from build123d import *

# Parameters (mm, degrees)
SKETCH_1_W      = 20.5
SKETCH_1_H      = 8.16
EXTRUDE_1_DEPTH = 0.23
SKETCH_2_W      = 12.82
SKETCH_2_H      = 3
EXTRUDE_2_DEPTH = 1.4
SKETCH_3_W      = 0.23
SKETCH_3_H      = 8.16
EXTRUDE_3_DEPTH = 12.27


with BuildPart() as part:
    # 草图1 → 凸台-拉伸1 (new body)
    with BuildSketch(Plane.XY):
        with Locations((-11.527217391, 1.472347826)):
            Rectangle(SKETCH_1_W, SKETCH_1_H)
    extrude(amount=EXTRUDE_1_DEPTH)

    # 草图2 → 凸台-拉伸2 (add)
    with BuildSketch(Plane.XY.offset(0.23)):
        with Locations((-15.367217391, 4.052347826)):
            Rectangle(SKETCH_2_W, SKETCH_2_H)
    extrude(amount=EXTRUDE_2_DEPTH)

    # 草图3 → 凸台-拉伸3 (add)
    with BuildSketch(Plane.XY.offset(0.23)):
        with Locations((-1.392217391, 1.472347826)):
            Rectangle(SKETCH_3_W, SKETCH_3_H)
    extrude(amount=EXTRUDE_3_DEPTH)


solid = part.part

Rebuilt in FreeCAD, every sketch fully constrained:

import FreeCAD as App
import Part
import Sketcher
from FreeCAD import Vector


def add_polygon(sketch, points):
    """Adds a closed chain of lines whose ends are joined by coincident constraints."""
    first, n = sketch.GeometryCount, len(points)
    for a, b in zip(points, points[1:] + points[:1]):
        sketch.addGeometry(Part.LineSegment(App.Vector(*a, 0), App.Vector(*b, 0)), False)
    for i in range(n):
        sketch.addConstraint(Sketcher.Constraint("Coincident", first + i, 2, first + (i + 1) % n, 1))

doc = App.newDocument("Part")
params = doc.addObject("Spreadsheet::Sheet", "Params")
for row, (alias, value) in enumerate([
    ("sketch1_width", "20.5 mm"),
    ("sketch1_height", "8.16 mm"),
    ("pad1_length", "0.23 mm"),
    ("sketch2_height", "3 mm"),
    ("sketch2_width", "12.82 mm"),
    ("pad2_length", "1.4 mm"),
    ("sketch3_width", "0.23 mm"),
    ("sketch3_height", "8.16 mm"),
    ("pad3_length", "12.27 mm"),
], start=1):
    params.set(f"A{row}", alias)
    params.set(f"B{row}", "=" + value)
    params.setAlias(f"B{row}", alias)

body = doc.addObject("PartDesign::Body", "Body")

# Sketch on XY plane
sketch1 = body.newObject("Sketcher::SketchObject", "Sketch")
sketch1.AttachmentSupport = (doc.getObject("XY_Plane"), [""])
sketch1.MapMode = "FlatFace"
add_polygon(sketch1, [(-22, 6), (-22, -3), (-1, -3), (-1, 6)])  # lines 0-3
sketch1.addConstraint(Sketcher.Constraint("Vertical", 0))
sketch1.addConstraint(Sketcher.Constraint("Horizontal", 1))
sketch1.addConstraint(Sketcher.Constraint("Vertical", 2))
sketch1.addConstraint(Sketcher.Constraint("Horizontal", 3))
sketch1.addConstraint(Sketcher.Constraint("DistanceX", 1, 1, 1, 2, 20.5))
sketch1.addConstraint(Sketcher.Constraint("DistanceY", 0, 2, 0, 1, 8.16))
sketch1.addConstraint(Sketcher.Constraint("DistanceX", 0, 2, -1, 1, 21.777217))
sketch1.addConstraint(Sketcher.Constraint("DistanceY", 0, 2, -1, 1, 2.607652))
sketch1.setExpression("Constraints[8]", "Params.sketch1_width")
sketch1.setExpression("Constraints[9]", "Params.sketch1_height")
pad1 = body.newObject("PartDesign::Pad", "Pad")
pad1.Profile = sketch1
pad1.setExpression("Length", "Params.pad1_length")

# Sketch on XY plane
sketch2 = body.newObject("Sketcher::SketchObject", "Sketch001")
sketch2.AttachmentSupport = (doc.getObject("XY_Plane"), [""])
sketch2.MapMode = "FlatFace"
sketch2.AttachmentOffset = App.Placement(Vector(0, 0, 0.23), App.Rotation())
add_polygon(sketch2, [(-21.8, 5.6), (-21.8, 2.6), (-9, 2.6), (-9, 5.6)])  # lines 0-3
sketch2.addConstraint(Sketcher.Constraint("Vertical", 0))
sketch2.addConstraint(Sketcher.Constraint("Horizontal", 1))
sketch2.addConstraint(Sketcher.Constraint("Vertical", 2))
sketch2.addConstraint(Sketcher.Constraint("Horizontal", 3))
sketch2.addConstraint(Sketcher.Constraint("DistanceY", 0, 2, 0, 1, 3.0))
sketch2.addConstraint(Sketcher.Constraint("DistanceX", 1, 1, 1, 2, 12.82))
sketch2.addConstraint(Sketcher.Constraint("DistanceX", 0, 2, -1, 1, 21.777217))
sketch2.addConstraint(Sketcher.Constraint("DistanceY", -1, 1, 0, 2, 2.552348))
sketch2.setExpression("Constraints[8]", "Params.sketch2_height")
sketch2.setExpression("Constraints[9]", "Params.sketch2_width")
pad2 = body.newObject("PartDesign::Pad", "Pad001")
pad2.Profile = sketch2
pad2.setExpression("Length", "Params.pad2_length")

# Sketch on XY plane
sketch3 = body.newObject("Sketcher::SketchObject", "Sketch002")
sketch3.AttachmentSupport = (doc.getObject("XY_Plane"), [""])
sketch3.MapMode = "FlatFace"
sketch3.AttachmentOffset = App.Placement(Vector(0, 0, 0.23), App.Rotation())
add_polygon(sketch3, [(-1.51, 5.55), (-1.51, -2.61), (-1.28, -2.61), (-1.28, 5.55)])  # lines 0-3
sketch3.addConstraint(Sketcher.Constraint("Vertical", 0))
sketch3.addConstraint(Sketcher.Constraint("Horizontal", 1))
sketch3.addConstraint(Sketcher.Constraint("Vertical", 2))
sketch3.addConstraint(Sketcher.Constraint("Horizontal", 3))
sketch3.addConstraint(Sketcher.Constraint("DistanceX", 1, 1, 1, 2, 0.23))
sketch3.addConstraint(Sketcher.Constraint("DistanceY", 0, 2, 0, 1, 8.16))
sketch3.addConstraint(Sketcher.Constraint("DistanceX", 0, 2, -1, 1, 1.507217))
sketch3.addConstraint(Sketcher.Constraint("DistanceY", 0, 2, -1, 1, 2.607652))
sketch3.setExpression("Constraints[8]", "Params.sketch3_width")
sketch3.setExpression("Constraints[9]", "Params.sketch3_height")
pad3 = body.newObject("PartDesign::Pad", "Pad002")
pad3.Profile = sketch3
pad3.setExpression("Length", "Params.pad3_length")

doc.recompute()
